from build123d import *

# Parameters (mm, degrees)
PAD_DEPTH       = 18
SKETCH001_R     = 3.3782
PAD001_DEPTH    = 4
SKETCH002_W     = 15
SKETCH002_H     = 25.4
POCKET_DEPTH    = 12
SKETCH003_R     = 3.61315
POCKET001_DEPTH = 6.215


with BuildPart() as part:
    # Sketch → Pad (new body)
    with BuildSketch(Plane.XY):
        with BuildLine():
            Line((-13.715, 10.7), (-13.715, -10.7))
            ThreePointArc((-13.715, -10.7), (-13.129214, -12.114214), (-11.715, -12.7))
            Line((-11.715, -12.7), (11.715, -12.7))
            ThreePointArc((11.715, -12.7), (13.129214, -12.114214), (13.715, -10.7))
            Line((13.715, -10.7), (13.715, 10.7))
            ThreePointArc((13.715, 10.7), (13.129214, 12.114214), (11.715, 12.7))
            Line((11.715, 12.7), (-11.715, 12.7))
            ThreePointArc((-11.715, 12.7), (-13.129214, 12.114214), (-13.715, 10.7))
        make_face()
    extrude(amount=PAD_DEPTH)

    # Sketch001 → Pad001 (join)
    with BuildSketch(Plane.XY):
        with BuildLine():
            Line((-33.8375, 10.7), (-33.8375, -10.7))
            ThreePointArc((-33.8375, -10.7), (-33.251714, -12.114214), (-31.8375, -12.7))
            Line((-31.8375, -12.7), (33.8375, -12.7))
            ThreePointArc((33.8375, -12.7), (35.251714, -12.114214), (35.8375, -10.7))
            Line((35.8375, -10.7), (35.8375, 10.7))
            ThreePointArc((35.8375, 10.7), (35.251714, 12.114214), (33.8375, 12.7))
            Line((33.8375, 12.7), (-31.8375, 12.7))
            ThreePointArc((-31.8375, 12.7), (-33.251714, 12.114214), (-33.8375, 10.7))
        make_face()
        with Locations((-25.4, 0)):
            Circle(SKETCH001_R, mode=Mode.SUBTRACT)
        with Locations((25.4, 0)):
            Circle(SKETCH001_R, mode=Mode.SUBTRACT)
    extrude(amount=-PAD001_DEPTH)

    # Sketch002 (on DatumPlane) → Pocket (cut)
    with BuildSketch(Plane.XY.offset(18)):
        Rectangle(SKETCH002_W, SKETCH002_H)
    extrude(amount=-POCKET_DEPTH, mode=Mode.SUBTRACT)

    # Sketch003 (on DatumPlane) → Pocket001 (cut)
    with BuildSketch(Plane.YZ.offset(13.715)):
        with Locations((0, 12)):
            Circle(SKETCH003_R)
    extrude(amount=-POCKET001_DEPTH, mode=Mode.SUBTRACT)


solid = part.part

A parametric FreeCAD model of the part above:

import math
import FreeCAD as App
import Part
import Sketcher

V = App.Vector


def add_polygon(sketch, points):
    """Adds a closed chain of lines whose ends are joined by coincident constraints."""
    first, n = sketch.GeometryCount, len(points)
    for a, b in zip(points, points[1:] + points[:1]):
        sketch.addGeometry(Part.LineSegment(App.Vector(*a, 0), App.Vector(*b, 0)), False)
    for i in range(n):
        sketch.addConstraint(Sketcher.Constraint("Coincident", first + i, 2, first + (i + 1) % n, 1))

doc = App.newDocument("Part")
body = doc.addObject("PartDesign::Body", "Body")

sketch1 = doc.addObject("Sketcher::SketchObject", "Sketch")
body.addObject(sketch1)
sketch1.AttachmentSupport = (doc.XY_Plane, [""])
sketch1.MapMode = "FlatFace"
sketch1.addGeometry(Part.LineSegment(V(-13.7, 10.7, 0), V(-13.7, -10.7, 0)), False)
sketch1.addGeometry(Part.ArcOfCircle(Part.Circle(V(-11.7, -10.7, 0), V(0, 0, 1), 2), math.radians(180), math.radians(270)), False)
sketch1.addGeometry(Part.LineSegment(V(-11.7, -12.7, 0), V(11.7, -12.7, 0)), False)
sketch1.addGeometry(Part.ArcOfCircle(Part.Circle(V(11.7, -10.7, 0), V(0, 0, 1), 2), math.radians(-90), math.radians(0)), False)
sketch1.addGeometry(Part.LineSegment(V(13.7, -10.7, 0), V(13.7, 10.7, 0)), False)
sketch1.addGeometry(Part.ArcOfCircle(Part.Circle(V(11.7, 10.7, 0), V(0, 0, 1), 2), math.radians(0), math.radians(90)), False)
sketch1.addGeometry(Part.LineSegment(V(11.7, 12.7, 0), V(-11.7, 12.7, 0)), False)
sketch1.addGeometry(Part.ArcOfCircle(Part.Circle(V(-11.7, 10.7, 0), V(0, 0, 1), 2), math.radians(90), math.radians(180)), False)
sketch1.addConstraint(Sketcher.Constraint("Tangent", 0, 2, 1, 1))
sketch1.addConstraint(Sketcher.Constraint("Tangent", 1, 2, 2, 1))
sketch1.addConstraint(Sketcher.Constraint("Tangent", 2, 2, 3, 1))
sketch1.addConstraint(Sketcher.Constraint("Tangent", 3, 2, 4, 1))
sketch1.addConstraint(Sketcher.Constraint("Tangent", 4, 2, 5, 1))
sketch1.addConstraint(Sketcher.Constraint("Tangent", 5, 2, 6, 1))
sketch1.addConstraint(Sketcher.Constraint("Tangent", 6, 2, 7, 1))
sketch1.addConstraint(Sketcher.Constraint("Tangent", 7, 2, 0, 1))
sketch1.addConstraint(Sketcher.Constraint("Vertical", 0))
sketch1.addConstraint(Sketcher.Constraint("Horizontal", 2))
sketch1.addConstraint(Sketcher.Constraint("Vertical", 4))
sketch1.addConstraint(Sketcher.Constraint("Horizontal", 6))
sketch1.addConstraint(Sketcher.Constraint("Equal", 1, 3))
sketch1.addConstraint(Sketcher.Constraint("Equal", 3, 5))
sketch1.addConstraint(Sketcher.Constraint("Equal", 5, 7))
sketch1.addConstraint(Sketcher.Constraint("Symmetric", 1, 3, 5, 3, -1, 1))
sketch1.addConstraint(Sketcher.Constraint("Radius", 1, 1.999999))
sketch1.addConstraint(Sketcher.Constraint("DistanceY", 0, 2, 0, 1, 21.4))
sketch1.addConstraint(Sketcher.Constraint("DistanceX", 2, 1, 2, 2, 23.43))
pad1 = doc.addObject("PartDesign::Pad", "Pad")
body.addObject(pad1)
pad1.Profile = sketch1
pad1.Length = 18

sketch2 = doc.addObject("Sketcher::SketchObject", "Sketch001")
body.addObject(sketch2)
sketch2.AttachmentSupport = (doc.XY_Plane, [""])
sketch2.MapMode = "FlatFace"
sketch2.addGeometry(Part.LineSegment(V(-33.8, 10.7, 0), V(-33.8, -10.7, 0)), False)
sketch2.addGeometry(Part.ArcOfCircle(Part.Circle(V(-31.8, -10.7, 0), V(0, 0, 1), 2), math.radians(180), math.radians(270)), False)
sketch2.addGeometry(Part.LineSegment(V(-31.8, -12.7, 0), V(33.8, -12.7, 0)), False)
sketch2.addGeometry(Part.ArcOfCircle(Part.Circle(V(33.8, -10.7, 0), V(0, 0, 1), 2), math.radians(-90), math.radians(0)), False)
sketch2.addGeometry(Part.LineSegment(V(35.8, -10.7, 0), V(35.8, 10.7, 0)), False)
sketch2.addGeometry(Part.ArcOfCircle(Part.Circle(V(33.8, 10.7, 0), V(0, 0, 1), 2), math.radians(0), math.radians(90)), False)
sketch2.addGeometry(Part.LineSegment(V(33.8, 12.7, 0), V(-31.8, 12.7, 0)), False)
sketch2.addGeometry(Part.ArcOfCircle(Part.Circle(V(-31.8, 10.7, 0), V(0, 0, 1), 2), math.radians(90), math.radians(180)), False)
sketch2.addGeometry(Part.Circle(V(-25.4, 0, 0), V(0, 0, 1), 3.4), False)
sketch2.addGeometry(Part.Circle(V(25.4, 0, 0), V(0, 0, 1), 3.4), False)
sketch2.addConstraint(Sketcher.Constraint("Tangent", 0, 2, 1, 1))
sketch2.addConstraint(Sketcher.Constraint("Tangent", 1, 2, 2, 1))
sketch2.addConstraint(Sketcher.Constraint("Tangent", 2, 2, 3, 1))
sketch2.addConstraint(Sketcher.Constraint("Tangent", 3, 2, 4, 1))
sketch2.addConstraint(Sketcher.Constraint("Tangent", 4, 2, 5, 1))
sketch2.addConstraint(Sketcher.Constraint("Tangent", 5, 2, 6, 1))
sketch2.addConstraint(Sketcher.Constraint("Tangent", 6, 2, 7, 1))
sketch2.addConstraint(Sketcher.Constraint("Tangent", 7, 2, 0, 1))
sketch2.addConstraint(Sketcher.Constraint("Vertical", 0))
sketch2.addConstraint(Sketcher.Constraint("Horizontal", 2))
sketch2.addConstraint(Sketcher.Constraint("Vertical", 4))
sketch2.addConstraint(Sketcher.Constraint("Horizontal", 6))
sketch2.addConstraint(Sketcher.Constraint("Equal", 1, 3))
sketch2.addConstraint(Sketcher.Constraint("Equal", 3, 5))
sketch2.addConstraint(Sketcher.Constraint("Equal", 5, 7))
sketch2.addConstraint(Sketcher.Constraint("Equal", 8, 9))
sketch2.addConstraint(Sketcher.Constraint("Symmetric", 8, 3, 9, 3, -1, 1))
sketch2.addConstraint(Sketcher.Constraint("PointOnObject", 8, 3, -1))
sketch2.addConstraint(Sketcher.Constraint("Radius", 1, 1.999999))
sketch2.addConstraint(Sketcher.Constraint("DistanceY", 0, 2, 0, 1, 21.4))
sketch2.addConstraint(Sketcher.Constraint("Diameter", 8, 6.7564))
sketch2.addConstraint(Sketcher.Constraint("DistanceY", 1, 3, -1, 1, 10.700001))
sketch2.addConstraint(Sketcher.Constraint("DistanceX", 8, 3, -1, 1, 25.4))
sketch2.addConstraint(Sketcher.Constraint("DistanceX", 2, 1, 2, 2, 65.675))
sketch2.addConstraint(Sketcher.Constraint("DistanceX", 1, 3, -1, 1, 31.837501))
pad2 = doc.addObject("PartDesign::Pad", "Pad001")
body.addObject(pad2)
pad2.Profile = sketch2
pad2.Length = 4
pad2.Reversed = True

sketch3 = doc.addObject("Sketcher::SketchObject", "Sketch002")
body.addObject(sketch3)
sketch3.AttachmentSupport = (doc.XY_Plane, [""])
sketch3.MapMode = "FlatFace"
sketch3.AttachmentOffset = App.Placement(V(0, 0, 18), App.Rotation())
add_polygon(sketch3, [(-8, 13), (-8, -13), (8, -13), (8, 13)])
sketch3.addConstraint(Sketcher.Constraint("Vertical", 0))
sketch3.addConstraint(Sketcher.Constraint("Horizontal", 1))
sketch3.addConstraint(Sketcher.Constraint("Vertical", 2))
sketch3.addConstraint(Sketcher.Constraint("Horizontal", 3))
sketch3.addConstraint(Sketcher.Constraint("Symmetric", 0, 2, 2, 2, -1, 1))
sketch3.addConstraint(Sketcher.Constraint("DistanceX", 1, 1, 1, 2, 15.0))
sketch3.addConstraint(Sketcher.Constraint("DistanceY", 0, 2, 0, 1, 25.4))
pocket1 = doc.addObject("PartDesign::Pocket", "Pocket")
body.addObject(pocket1)
pocket1.Profile = sketch3
pocket1.Length = 12

sketch4 = doc.addObject("Sketcher::SketchObject", "Sketch003")
body.addObject(sketch4)
sketch4.AttachmentSupport = (doc.YZ_Plane, [""])
sketch4.MapMode = "FlatFace"
sketch4.AttachmentOffset = App.Placement(V(0, 0, 13.715), App.Rotation())
sketch4.addGeometry(Part.Circle(V(0, 12, 0), V(0, 0, 1), 3.6), False)
sketch4.addConstraint(Sketcher.Constraint("PointOnObject", 0, 3, -2))
sketch4.addConstraint(Sketcher.Constraint("DistanceY", -1, 1, 0, 3, 12.0))
sketch4.addConstraint(Sketcher.Constraint("Diameter", 0, 7.2263))
pocket2 = doc.addObject("PartDesign::Pocket", "Pocket001")
body.addObject(pocket2)
pocket2.Profile = sketch4
pocket2.Length = 6.215

doc.recompute()
